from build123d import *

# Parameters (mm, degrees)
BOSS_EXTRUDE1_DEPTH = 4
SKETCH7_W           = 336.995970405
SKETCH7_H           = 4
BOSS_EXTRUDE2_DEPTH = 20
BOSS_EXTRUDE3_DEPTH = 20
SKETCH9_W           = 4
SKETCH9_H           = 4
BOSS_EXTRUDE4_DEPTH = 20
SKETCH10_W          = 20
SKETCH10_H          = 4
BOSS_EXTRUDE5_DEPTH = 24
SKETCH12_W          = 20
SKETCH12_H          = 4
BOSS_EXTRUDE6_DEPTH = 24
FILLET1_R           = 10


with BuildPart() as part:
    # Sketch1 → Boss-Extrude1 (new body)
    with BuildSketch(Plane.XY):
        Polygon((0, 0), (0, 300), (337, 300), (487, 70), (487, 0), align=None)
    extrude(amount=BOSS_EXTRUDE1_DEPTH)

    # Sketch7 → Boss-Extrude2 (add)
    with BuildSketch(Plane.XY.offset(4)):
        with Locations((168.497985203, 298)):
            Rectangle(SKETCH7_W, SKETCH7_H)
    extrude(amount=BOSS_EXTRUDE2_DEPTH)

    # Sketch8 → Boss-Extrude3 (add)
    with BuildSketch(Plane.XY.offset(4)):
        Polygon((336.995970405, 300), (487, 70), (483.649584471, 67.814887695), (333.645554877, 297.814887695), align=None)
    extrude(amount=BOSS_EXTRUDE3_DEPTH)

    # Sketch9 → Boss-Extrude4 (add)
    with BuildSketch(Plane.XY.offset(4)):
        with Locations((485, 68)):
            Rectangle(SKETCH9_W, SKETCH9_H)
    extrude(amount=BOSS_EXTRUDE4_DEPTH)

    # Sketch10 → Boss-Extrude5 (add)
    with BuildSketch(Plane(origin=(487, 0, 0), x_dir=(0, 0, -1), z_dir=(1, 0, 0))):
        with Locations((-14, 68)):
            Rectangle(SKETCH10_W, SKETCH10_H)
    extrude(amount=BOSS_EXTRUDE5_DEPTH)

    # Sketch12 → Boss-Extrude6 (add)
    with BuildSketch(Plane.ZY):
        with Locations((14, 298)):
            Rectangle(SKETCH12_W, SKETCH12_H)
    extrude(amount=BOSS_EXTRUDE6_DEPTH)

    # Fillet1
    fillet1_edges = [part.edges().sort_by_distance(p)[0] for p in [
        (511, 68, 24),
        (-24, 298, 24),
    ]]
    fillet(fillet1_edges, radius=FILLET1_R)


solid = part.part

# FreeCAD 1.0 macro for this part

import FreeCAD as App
import Part
import Sketcher
from FreeCAD import Vector


def edges_at(feature, points):
    """Names of the edges that pass closest to the given points."""
    edges = feature.Shape.Edges
    near = lambda p: min(range(len(edges)), key=lambda i: edges[i].distToShape(Part.Vertex(*p))[0])
    return sorted({f"Edge{near(p) + 1}" for p in points})


def add_polygon(sketch, points):
    """Adds a closed chain of lines whose ends are joined by coincident constraints."""
    first, n = sketch.GeometryCount, len(points)
    for a, b in zip(points, points[1:] + points[:1]):
        sketch.addGeometry(Part.LineSegment(App.Vector(*a, 0), App.Vector(*b, 0)), False)
    for i in range(n):
        sketch.addConstraint(Sketcher.Constraint("Coincident", first + i, 2, first + (i + 1) % n, 1))

doc = App.newDocument("Part")
body = doc.addObject("PartDesign::Body", "Body")

# Sketch on XY plane
sketch1 = body.newObject("Sketcher::SketchObject", "Sketch")
sketch1.AttachmentSupport = (doc.getObject("XY_Plane"), [""])
sketch1.MapMode = "FlatFace"
add_polygon(sketch1, [(0, 300), (0, 0), (487, 0), (487, 70), (337, 300)])  # lines 0-4
sketch1.addConstraint(Sketcher.Constraint("Vertical", 0))
sketch1.addConstraint(Sketcher.Constraint("Horizontal", 1))
sketch1.addConstraint(Sketcher.Constraint("Vertical", 2))
sketch1.addConstraint(Sketcher.Constraint("Horizontal", 4))
sketch1.addConstraint(Sketcher.Constraint("Coincident", 0, 2, -1, 1))
sketch1.addConstraint(Sketcher.Constraint("DistanceX", 1, 1, 1, 2, 487.0))
sketch1.addConstraint(Sketcher.Constraint("DistanceX", 4, 2, 4, 1, 337.0))
sketch1.addConstraint(Sketcher.Constraint("DistanceY", 0, 2, 0, 1, 300.0))
sketch1.addConstraint(Sketcher.Constraint("DistanceY", 2, 1, 2, 2, 70.0))
pad1 = body.newObject("PartDesign::Pad", "Pad")
pad1.Profile = sketch1
pad1.Length = 4

# Sketch on XY plane
sketch2 = body.newObject("Sketcher::SketchObject", "Sketch001")
sketch2.AttachmentSupport = (doc.getObject("XY_Plane"), [""])
sketch2.MapMode = "FlatFace"
sketch2.AttachmentOffset = App.Placement(Vector(0, 0, 4), App.Rotation())
add_polygon(sketch2, [(0, 300), (0, 296), (337, 296), (337, 300)])  # lines 0-3
sketch2.addConstraint(Sketcher.Constraint("Vertical", 0))
sketch2.addConstraint(Sketcher.Constraint("Horizontal", 1))
sketch2.addConstraint(Sketcher.Constraint("Vertical", 2))
sketch2.addConstraint(Sketcher.Constraint("Horizontal", 3))
sketch2.addConstraint(Sketcher.Constraint("PointOnObject", 0, 2, -2))
sketch2.addConstraint(Sketcher.Constraint("DistanceY", 0, 2, 0, 1, 4.0))
sketch2.addConstraint(Sketcher.Constraint("DistanceY", -1, 1, 0, 2, 296.0))
sketch2.addConstraint(Sketcher.Constraint("DistanceX", 1, 1, 1, 2, 336.99597))
pad2 = body.newObject("PartDesign::Pad", "Pad001")
pad2.Profile = sketch2
pad2.Length = 20

# Sketch on XY plane
sketch3 = body.newObject("Sketcher::SketchObject", "Sketch002")
sketch3.AttachmentSupport = (doc.getObject("XY_Plane"), [""])
sketch3.MapMode = "FlatFace"
sketch3.AttachmentOffset = App.Placement(Vector(0, 0, 4), App.Rotation())
add_polygon(sketch3, [(487, 70), (337, 300), (333.6, 297.8), (483.6, 67.8)])  # lines 0-3
sketch3.addConstraint(Sketcher.Constraint("Perpendicular", 0, 1))
sketch3.addConstraint(Sketcher.Constraint("Perpendicular", 1, 2))
sketch3.addConstraint(Sketcher.Constraint("Perpendicular", 2, 3))
sketch3.addConstraint(Sketcher.Constraint("Distance", 1, 4.0))
sketch3.addConstraint(Sketcher.Constraint("DistanceY", -1, 1, 0, 2, 300.0))
sketch3.addConstraint(Sketcher.Constraint("DistanceX", -1, 1, 3, 2, 487.0))
sketch3.addConstraint(Sketcher.Constraint("DistanceY", -1, 1, 3, 2, 70.0))
sketch3.addConstraint(Sketcher.Constraint("DistanceX", -1, 1, 0, 2, 336.99597))
pad3 = body.newObject("PartDesign::Pad", "Pad002")
pad3.Profile = sketch3
pad3.Length = 20

# Sketch on XY plane
sketch4 = body.newObject("Sketcher::SketchObject", "Sketch003")
sketch4.AttachmentSupport = (doc.getObject("XY_Plane"), [""])
sketch4.MapMode = "FlatFace"
sketch4.AttachmentOffset = App.Placement(Vector(0, 0, 4), App.Rotation())
add_polygon(sketch4, [(483, 70), (483, 66), (487, 66), (487, 70)])  # lines 0-3
sketch4.addConstraint(Sketcher.Constraint("Vertical", 0))
sketch4.addConstraint(Sketcher.Constraint("Horizontal", 1))
sketch4.addConstraint(Sketcher.Constraint("Vertical", 2))
sketch4.addConstraint(Sketcher.Constraint("Horizontal", 3))
sketch4.addConstraint(Sketcher.Constraint("Equal", 3, 0))
sketch4.addConstraint(Sketcher.Constraint("DistanceX", 1, 1, 1, 2, 4.0))
sketch4.addConstraint(Sketcher.Constraint("DistanceX", -1, 1, 0, 2, 483.0))
sketch4.addConstraint(Sketcher.Constraint("DistanceY", -1, 1, 0, 2, 66.0))
pad4 = body.newObject("PartDesign::Pad", "Pad003")
pad4.Profile = sketch4
pad4.Length = 20

# Sketch on YZ plane
sketch5 = body.newObject("Sketcher::SketchObject", "Sketch004")
sketch5.AttachmentSupport = (doc.getObject("YZ_Plane"), [""])
sketch5.MapMode = "FlatFace"
sketch5.AttachmentOffset = App.Placement(Vector(0, 0, 487), App.Rotation())
add_polygon(sketch5, [(70, 24), (66, 24), (66, 4), (70, 4)])  # lines 0-3
sketch5.addConstraint(Sketcher.Constraint("Horizontal", 0))
sketch5.addConstraint(Sketcher.Constraint("Vertical", 1))
sketch5.addConstraint(Sketcher.Constraint("Horizontal", 2))
sketch5.addConstraint(Sketcher.Constraint("Vertical", 3))
sketch5.addConstraint(Sketcher.Constraint("DistanceX", 0, 2, 0, 1, 4.0))
sketch5.addConstraint(Sketcher.Constraint("DistanceY", 1, 2, 1, 1, 20.0))
sketch5.addConstraint(Sketcher.Constraint("DistanceX", -1, 1, 0, 2, 66.0))
sketch5.addConstraint(Sketcher.Constraint("DistanceY", -1, 1, 0, 2, 24.0))
pad5 = body.newObject("PartDesign::Pad", "Pad004")
pad5.Profile = sketch5
pad5.Length = 24

# Sketch on YZ plane
sketch6 = body.newObject("Sketcher::SketchObject", "Sketch005")
sketch6.AttachmentSupport = (doc.getObject("YZ_Plane"), [""])
sketch6.MapMode = "FlatFace"
add_polygon(sketch6, [(300, 4), (296, 4), (296, 24), (300, 24)])  # lines 0-3
sketch6.addConstraint(Sketcher.Constraint("Horizontal", 0))
sketch6.addConstraint(Sketcher.Constraint("Vertical", 1))
sketch6.addConstraint(Sketcher.Constraint("Horizontal", 2))
sketch6.addConstraint(Sketcher.Constraint("Vertical", 3))
sketch6.addConstraint(Sketcher.Constraint("DistanceX", 0, 2, 0, 1, 4.0))
sketch6.addConstraint(Sketcher.Constraint("DistanceY", 1, 1, 1, 2, 20.0))
sketch6.addConstraint(Sketcher.Constraint("DistanceX", -1, 1, 0, 2, 296.0))
sketch6.addConstraint(Sketcher.Constraint("DistanceY", -1, 1, 0, 2, 4.0))
pad6 = body.newObject("PartDesign::Pad", "Pad005")
pad6.Profile = sketch6
pad6.Length = 24
pad6.Reversed = True
doc.recompute()

fillet = body.newObject("PartDesign::Fillet", "Fillet")
fillet.Base = (pad6, edges_at(pad6, [(511, 68, 24), (-24, 298, 24)]))
fillet.Radius = 10

doc.recompute()
